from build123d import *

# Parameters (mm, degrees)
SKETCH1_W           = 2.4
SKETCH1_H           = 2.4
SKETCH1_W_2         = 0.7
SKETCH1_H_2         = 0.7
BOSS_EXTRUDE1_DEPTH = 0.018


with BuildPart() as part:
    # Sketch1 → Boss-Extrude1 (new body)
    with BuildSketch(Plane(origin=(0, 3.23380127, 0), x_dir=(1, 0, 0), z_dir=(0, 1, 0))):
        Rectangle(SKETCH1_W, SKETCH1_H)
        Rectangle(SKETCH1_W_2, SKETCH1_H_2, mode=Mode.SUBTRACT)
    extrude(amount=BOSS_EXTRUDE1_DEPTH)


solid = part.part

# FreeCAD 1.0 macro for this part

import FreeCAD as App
import Part
import Sketcher
from FreeCAD import Vector
Q = App.Units.Quantity

doc = App.newDocument("Part")
body = doc.addObject("PartDesign::Body", "Body")

sketch1 = body.newObject("Sketcher::SketchObject", "Sketch")
sketch1.AttachmentSupport = (doc.getObject("XZ_Plane"), [""])
sketch1.MapMode = "FlatFace"
sketch1.AttachmentOffset = App.Placement(Vector(0, 0, -3.233801), App.Rotation())
sketch1.addGeometry(Part.LineSegment(Vector(-1.2, -1.2, 0), Vector(-1.2, 1.2, 0)), False)
sketch1.addGeometry(Part.LineSegment(Vector(-1.2, 1.2, 0), Vector(1.2, 1.2, 0)), False)
sketch1.addGeometry(Part.LineSegment(Vector(1.2, 1.2, 0), Vector(1.2, -1.2, 0)), False)
sketch1.addGeometry(Part.LineSegment(Vector(1.2, -1.2, 0), Vector(-1.2, -1.2, 0)), False)
sketch1.addGeometry(Part.LineSegment(Vector(0.35, 0.35, 0), Vector(-0.35, 0.35, 0)), False)
sketch1.addGeometry(Part.LineSegment(Vector(-0.35, 0.35, 0), Vector(-0.35, -0.35, 0)), False)
sketch1.addGeometry(Part.LineSegment(Vector(-0.35, -0.35, 0), Vector(0.35, -0.35, 0)), False)
sketch1.addGeometry(Part.LineSegment(Vector(0.35, -0.35, 0), Vector(0.35, 0.35, 0)), False)
sketch1.addConstraint(Sketcher.Constraint("Coincident", 0, 2, 1, 1))
sketch1.addConstraint(Sketcher.Constraint("Coincident", 1, 2, 2, 1))
sketch1.addConstraint(Sketcher.Constraint("Coincident", 2, 2, 3, 1))
sketch1.addConstraint(Sketcher.Constraint("Coincident", 3, 2, 0, 1))
sketch1.addConstraint(Sketcher.Constraint("Coincident", 4, 2, 5, 1))
sketch1.addConstraint(Sketcher.Constraint("Coincident", 5, 2, 6, 1))
sketch1.addConstraint(Sketcher.Constraint("Coincident", 6, 2, 7, 1))
sketch1.addConstraint(Sketcher.Constraint("Coincident", 7, 2, 4, 1))
sketch1.addConstraint(Sketcher.Constraint("Vertical", 0))
sketch1.addConstraint(Sketcher.Constraint("Horizontal", 1))
sketch1.addConstraint(Sketcher.Constraint("Vertical", 2))
sketch1.addConstraint(Sketcher.Constraint("Horizontal", 3))
sketch1.addConstraint(Sketcher.Constraint("Horizontal", 4))
sketch1.addConstraint(Sketcher.Constraint("Vertical", 5))
sketch1.addConstraint(Sketcher.Constraint("Horizontal", 6))
sketch1.addConstraint(Sketcher.Constraint("Vertical", 7))
sketch1.addConstraint(Sketcher.Constraint("Symmetric", 0, 2, 2, 2, -1, 1))
sketch1.addConstraint(Sketcher.Constraint("Symmetric", 4, 2, 6, 2, -1, 1))
sketch1.addConstraint(Sketcher.Constraint("Equal", 3, 0))
sketch1.addConstraint(Sketcher.Constraint("Equal", 6, 5))
sketch1.addConstraint(Sketcher.Constraint("DistanceX", 1, 1, 1, 2, Q("2.4 mm")))
sketch1.addConstraint(Sketcher.Constraint("DistanceX", 4, 2, 4, 1, Q("0.7 mm")))
pad1 = body.newObject("PartDesign::Pad", "Pad")
pad1.Profile = sketch1
pad1.Length = 0.018
pad1.Reversed = True

doc.recompute()
